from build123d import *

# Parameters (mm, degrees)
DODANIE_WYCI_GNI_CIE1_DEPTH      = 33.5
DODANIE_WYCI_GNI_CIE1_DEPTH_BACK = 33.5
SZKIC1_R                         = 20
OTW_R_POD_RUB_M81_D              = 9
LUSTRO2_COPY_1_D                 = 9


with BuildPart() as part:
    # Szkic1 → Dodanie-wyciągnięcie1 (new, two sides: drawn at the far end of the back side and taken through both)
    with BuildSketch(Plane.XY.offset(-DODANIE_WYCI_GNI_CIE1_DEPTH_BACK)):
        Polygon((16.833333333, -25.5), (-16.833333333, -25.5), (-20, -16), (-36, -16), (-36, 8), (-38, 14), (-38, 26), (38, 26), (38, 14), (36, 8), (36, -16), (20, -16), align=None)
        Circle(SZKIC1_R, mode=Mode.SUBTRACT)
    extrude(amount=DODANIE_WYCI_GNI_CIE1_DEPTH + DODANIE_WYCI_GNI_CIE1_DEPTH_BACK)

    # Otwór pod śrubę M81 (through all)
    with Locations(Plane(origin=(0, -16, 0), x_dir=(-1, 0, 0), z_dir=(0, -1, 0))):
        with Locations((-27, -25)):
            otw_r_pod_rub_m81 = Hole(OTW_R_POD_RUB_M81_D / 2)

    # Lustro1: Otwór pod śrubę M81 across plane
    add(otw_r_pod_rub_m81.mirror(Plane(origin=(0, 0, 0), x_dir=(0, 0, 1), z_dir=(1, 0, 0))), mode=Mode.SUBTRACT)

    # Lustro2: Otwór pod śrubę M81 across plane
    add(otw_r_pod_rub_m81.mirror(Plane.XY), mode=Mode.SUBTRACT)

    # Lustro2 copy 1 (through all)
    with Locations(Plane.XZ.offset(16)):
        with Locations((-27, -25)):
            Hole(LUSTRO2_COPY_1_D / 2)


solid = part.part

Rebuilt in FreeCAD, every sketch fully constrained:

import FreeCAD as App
import Part
import Sketcher
Q = App.Units.Quantity

doc = App.newDocument("Part")
body = doc.addObject("PartDesign::Body", "Body")

sketch1 = doc.addObject("Sketcher::SketchObject", "Sketch")
body.addObject(sketch1)
sketch1.AttachmentSupport = (doc.XY_Plane, [""])
sketch1.MapMode = "FlatFace"
sketch1.addGeometry([
    Part.LineSegment(App.Vector(-16.833333, -25.5, 0), App.Vector(16.833333, -25.5, 0)),
    Part.LineSegment(App.Vector(16.833333, -25.5, 0), App.Vector(20, -16, 0)),
    Part.LineSegment(App.Vector(20, -16, 0), App.Vector(36, -16, 0)),
    Part.LineSegment(App.Vector(36, -16, 0), App.Vector(36, 8, 0)),
    Part.LineSegment(App.Vector(36, 8, 0), App.Vector(38, 14, 0)),
    Part.LineSegment(App.Vector(38, 14, 0), App.Vector(38, 26, 0)),
    Part.LineSegment(App.Vector(38, 26, 0), App.Vector(-38, 26, 0)),
    Part.LineSegment(App.Vector(-38, 26, 0), App.Vector(-38, 14, 0)),
    Part.LineSegment(App.Vector(-38, 14, 0), App.Vector(-36, 8, 0)),
    Part.LineSegment(App.Vector(-36, 8, 0), App.Vector(-36, -16, 0)),
    Part.LineSegment(App.Vector(-36, -16, 0), App.Vector(-20, -16, 0)),
    Part.LineSegment(App.Vector(-20, -16, 0), App.Vector(-16.833333, -25.5, 0)),
    Part.Circle(App.Vector(0, 0, 0), App.Vector(0, 0, 1), 20),
], False)
sketch1.addConstraint([
    Sketcher.Constraint("Coincident", 0, 2, 1, 1),
    Sketcher.Constraint("Coincident", 1, 2, 2, 1),
    Sketcher.Constraint("Coincident", 2, 2, 3, 1),
    Sketcher.Constraint("Coincident", 3, 2, 4, 1),
    Sketcher.Constraint("Coincident", 4, 2, 5, 1),
    Sketcher.Constraint("Coincident", 5, 2, 6, 1),
    Sketcher.Constraint("Coincident", 6, 2, 7, 1),
    Sketcher.Constraint("Coincident", 7, 2, 8, 1),
    Sketcher.Constraint("Coincident", 8, 2, 9, 1),
    Sketcher.Constraint("Coincident", 9, 2, 10, 1),
    Sketcher.Constraint("Coincident", 10, 2, 11, 1),
    Sketcher.Constraint("Coincident", 11, 2, 0, 1),
    Sketcher.Constraint("Horizontal", 0),
    Sketcher.Constraint("Horizontal", 2),
    Sketcher.Constraint("Vertical", 3),
    Sketcher.Constraint("Vertical", 5),
    Sketcher.Constraint("Horizontal", 6),
    Sketcher.Constraint("Vertical", 7),
    Sketcher.Constraint("Vertical", 9),
    Sketcher.Constraint("Horizontal", 10),
    Sketcher.Constraint("Coincident", 12, 3, -1, 1),
    Sketcher.Constraint("Symmetric", 4, 2, 7, 2, -2),
    Sketcher.Constraint("Symmetric", 3, 2, 8, 2, -2),
    Sketcher.Constraint("Symmetric", 1, 2, 10, 2, -2),
    Sketcher.Constraint("Parallel", 1, 4),
    Sketcher.Constraint("Parallel", 8, 11),
    Sketcher.Constraint("Diameter", 12, Q("40 mm")),
    Sketcher.Constraint("DistanceX", 2, 1, 2, 2, Q("16 mm")),
    Sketcher.Constraint("DistanceX", 6, 2, 6, 1, Q("76 mm")),
    Sketcher.Constraint("DistanceY", 3, 1, 3, 2, Q("24 mm")),
    Sketcher.Constraint("DistanceY", 5, 1, 5, 2, Q("12 mm")),
    Sketcher.Constraint("DistanceX", -1, 1, 1, 2, Q("20 mm")),
    Sketcher.Constraint("DistanceY", 1, 2, -1, 1, Q("16 mm")),
    Sketcher.Constraint("DistanceY", -1, 1, 4, 2, Q("14 mm")),
    Sketcher.Constraint("DistanceY", 0, 2, -1, 1, Q("25.5 mm")),
])
pad1 = doc.addObject("PartDesign::Pad", "Pad")
body.addObject(pad1)
pad1.Profile = sketch1
pad1.Type = "TwoLengths"
pad1.Length = 33.5
pad1.Length2 = 33.5

sketch2 = doc.addObject("Sketcher::SketchObject", "Sketch001")
body.addObject(sketch2)
sketch2.AttachmentSupport = (doc.XZ_Plane, [""])
sketch2.MapMode = "FlatFace"
sketch2.AttachmentOffset = App.Placement(App.Vector(0, 0, 16), App.Rotation())
sketch2.addGeometry(Part.Circle(App.Vector(27, 25, 0), App.Vector(0, 0, 1), 4.5), False)
sketch2.addConstraint([
    Sketcher.Constraint("Diameter", 0, Q("9 mm")),
    Sketcher.Constraint("DistanceX", -1, 1, 0, 3, Q("27 mm")),
    Sketcher.Constraint("DistanceY", -1, 1, 0, 3, Q("25 mm")),
])
doc.recompute()
hole = doc.addObject("PartDesign::Hole", "Hole")
body.addObject(hole)
hole.Profile = sketch2
hole.ThreadType = "None"
hole.Diameter = 9
hole.DepthType = "ThroughAll"
doc.recompute()

mirrored = doc.addObject("PartDesign::Mirrored", "Mirrored")
body.addObject(mirrored)
mirrored.Originals = [hole]
mirrored.MirrorPlane = (doc.YZ_Plane, [""])
body.Tip = mirrored
doc.recompute()

mirrored2 = doc.addObject("PartDesign::Mirrored", "Mirrored001")
body.addObject(mirrored2)
mirrored2.Originals = [hole]
mirrored2.MirrorPlane = (doc.XY_Plane, [""])
body.Tip = mirrored2

sketch3 = doc.addObject("Sketcher::SketchObject", "Sketch002")
body.addObject(sketch3)
sketch3.AttachmentSupport = (doc.XZ_Plane, [""])
sketch3.MapMode = "FlatFace"
sketch3.AttachmentOffset = App.Placement(App.Vector(0, 0, 16), App.Rotation())
sketch3.addGeometry(Part.Circle(App.Vector(-27, -25, 0), App.Vector(0, 0, 1), 4.5), False)
sketch3.addConstraint([
    Sketcher.Constraint("Diameter", 0, Q("9 mm")),
    Sketcher.Constraint("DistanceX", 0, 3, -1, 1, Q("27 mm")),
    Sketcher.Constraint("DistanceY", 0, 3, -1, 1, Q("25 mm")),
])
doc.recompute()
hole2 = doc.addObject("PartDesign::Hole", "Hole001")
body.addObject(hole2)
hole2.Profile = sketch3
hole2.ThreadType = "None"
hole2.Diameter = 9
hole2.DepthType = "ThroughAll"

doc.recompute()
